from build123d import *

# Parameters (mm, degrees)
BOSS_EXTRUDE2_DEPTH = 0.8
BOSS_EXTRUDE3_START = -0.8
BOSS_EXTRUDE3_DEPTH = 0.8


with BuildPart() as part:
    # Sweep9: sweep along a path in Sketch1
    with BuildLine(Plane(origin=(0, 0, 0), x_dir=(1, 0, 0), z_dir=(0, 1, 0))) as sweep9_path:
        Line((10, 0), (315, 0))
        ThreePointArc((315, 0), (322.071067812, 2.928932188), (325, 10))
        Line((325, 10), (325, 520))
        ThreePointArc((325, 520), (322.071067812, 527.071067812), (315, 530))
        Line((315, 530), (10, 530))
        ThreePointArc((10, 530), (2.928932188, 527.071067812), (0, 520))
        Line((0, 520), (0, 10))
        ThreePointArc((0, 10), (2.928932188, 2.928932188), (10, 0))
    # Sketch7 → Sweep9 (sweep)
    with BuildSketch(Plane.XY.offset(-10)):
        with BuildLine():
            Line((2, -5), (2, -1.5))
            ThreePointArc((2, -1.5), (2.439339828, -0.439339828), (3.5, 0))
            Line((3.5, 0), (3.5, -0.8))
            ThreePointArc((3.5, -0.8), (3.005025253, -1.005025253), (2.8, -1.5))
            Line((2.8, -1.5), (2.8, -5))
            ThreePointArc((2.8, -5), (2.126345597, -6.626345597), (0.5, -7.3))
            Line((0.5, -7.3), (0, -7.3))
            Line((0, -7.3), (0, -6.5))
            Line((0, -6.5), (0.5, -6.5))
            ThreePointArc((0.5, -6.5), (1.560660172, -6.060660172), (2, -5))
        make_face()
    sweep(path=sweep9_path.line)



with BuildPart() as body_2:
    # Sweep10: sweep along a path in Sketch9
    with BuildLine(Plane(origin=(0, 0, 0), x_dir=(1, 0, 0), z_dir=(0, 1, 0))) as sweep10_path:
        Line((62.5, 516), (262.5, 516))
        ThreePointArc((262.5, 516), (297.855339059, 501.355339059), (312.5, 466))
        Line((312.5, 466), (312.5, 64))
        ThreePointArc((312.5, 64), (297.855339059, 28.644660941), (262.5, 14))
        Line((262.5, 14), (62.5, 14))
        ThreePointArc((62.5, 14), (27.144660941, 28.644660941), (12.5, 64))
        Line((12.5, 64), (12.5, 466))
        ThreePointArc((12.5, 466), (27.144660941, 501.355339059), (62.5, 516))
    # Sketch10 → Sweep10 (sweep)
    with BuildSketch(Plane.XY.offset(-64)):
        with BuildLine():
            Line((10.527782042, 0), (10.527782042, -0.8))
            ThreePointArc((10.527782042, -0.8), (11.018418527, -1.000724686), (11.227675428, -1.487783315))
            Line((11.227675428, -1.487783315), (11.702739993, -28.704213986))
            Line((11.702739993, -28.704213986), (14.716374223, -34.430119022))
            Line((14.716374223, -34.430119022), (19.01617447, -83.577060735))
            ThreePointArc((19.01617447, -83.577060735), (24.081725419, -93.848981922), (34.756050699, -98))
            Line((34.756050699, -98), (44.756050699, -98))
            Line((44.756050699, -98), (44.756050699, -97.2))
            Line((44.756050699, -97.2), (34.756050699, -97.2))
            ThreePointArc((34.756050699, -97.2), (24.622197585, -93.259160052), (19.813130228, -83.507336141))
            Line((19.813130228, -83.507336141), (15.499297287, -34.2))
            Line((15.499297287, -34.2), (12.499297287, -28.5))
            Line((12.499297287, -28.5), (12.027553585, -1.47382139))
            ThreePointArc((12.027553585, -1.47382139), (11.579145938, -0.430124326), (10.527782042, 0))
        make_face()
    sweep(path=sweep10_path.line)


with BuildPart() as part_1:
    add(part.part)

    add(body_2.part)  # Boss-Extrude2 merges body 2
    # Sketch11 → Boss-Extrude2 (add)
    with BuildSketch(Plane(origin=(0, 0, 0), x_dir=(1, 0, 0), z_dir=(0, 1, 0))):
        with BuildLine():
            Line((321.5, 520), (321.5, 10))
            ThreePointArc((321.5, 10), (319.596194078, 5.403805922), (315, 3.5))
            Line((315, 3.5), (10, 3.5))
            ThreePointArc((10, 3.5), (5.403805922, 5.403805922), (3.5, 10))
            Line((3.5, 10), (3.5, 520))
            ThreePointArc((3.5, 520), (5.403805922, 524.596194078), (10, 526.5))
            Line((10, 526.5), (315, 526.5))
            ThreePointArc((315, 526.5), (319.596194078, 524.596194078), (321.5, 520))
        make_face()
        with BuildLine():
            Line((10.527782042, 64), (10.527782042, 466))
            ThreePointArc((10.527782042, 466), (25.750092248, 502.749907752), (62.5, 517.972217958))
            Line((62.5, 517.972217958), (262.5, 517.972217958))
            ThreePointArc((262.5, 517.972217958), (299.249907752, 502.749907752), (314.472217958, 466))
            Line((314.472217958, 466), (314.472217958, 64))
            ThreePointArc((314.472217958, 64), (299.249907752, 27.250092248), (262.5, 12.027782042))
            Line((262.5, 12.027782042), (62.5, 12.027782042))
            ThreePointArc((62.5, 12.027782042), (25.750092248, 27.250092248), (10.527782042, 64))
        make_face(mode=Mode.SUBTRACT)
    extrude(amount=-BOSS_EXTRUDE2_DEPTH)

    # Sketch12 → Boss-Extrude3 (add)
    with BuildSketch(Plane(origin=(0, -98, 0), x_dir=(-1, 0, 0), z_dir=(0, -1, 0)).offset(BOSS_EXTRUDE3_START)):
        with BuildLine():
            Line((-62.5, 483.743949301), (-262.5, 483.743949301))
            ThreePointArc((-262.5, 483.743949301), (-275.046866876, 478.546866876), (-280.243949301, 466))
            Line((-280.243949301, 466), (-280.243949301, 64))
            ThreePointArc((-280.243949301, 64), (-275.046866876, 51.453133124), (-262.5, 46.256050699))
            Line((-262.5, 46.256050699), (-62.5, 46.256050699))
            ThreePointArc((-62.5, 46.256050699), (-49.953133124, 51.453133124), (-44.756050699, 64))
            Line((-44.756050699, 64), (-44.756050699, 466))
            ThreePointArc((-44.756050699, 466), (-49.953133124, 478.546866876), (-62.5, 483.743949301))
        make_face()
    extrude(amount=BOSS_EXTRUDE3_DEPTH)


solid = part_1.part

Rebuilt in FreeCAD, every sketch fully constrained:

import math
import FreeCAD as App
import Part
import Sketcher
from FreeCAD import Vector
Q = App.Units.Quantity

doc = App.newDocument("Part")
body = doc.addObject("PartDesign::Body", "Body")

# Sketch on XY plane
sketch1 = body.newObject("Sketcher::SketchObject", "Sketch")
sketch1.AttachmentSupport = (doc.getObject("XY_Plane"), [""])
sketch1.MapMode = "FlatFace"
sketch1.AttachmentOffset = App.Placement(Vector(0, 0, -10), App.Rotation())
sketch1.addGeometry(Part.LineSegment(Vector(2, -1.5, 0), Vector(2, -5, 0)), False)
sketch1.addGeometry(Part.ArcOfCircle(Part.Circle(Vector(0.5, -5, 0), Vector(0, 0, 1), 1.5), math.radians(-90), math.radians(0)), False)
sketch1.addGeometry(Part.LineSegment(Vector(0.5, -6.5, 0), Vector(0, -6.5, 0)), False)
sketch1.addGeometry(Part.LineSegment(Vector(0, -6.5, 0), Vector(0, -7.3, 0)), False)
sketch1.addGeometry(Part.LineSegment(Vector(0, -7.3, 0), Vector(0.5, -7.3, 0)), False)
sketch1.addGeometry(Part.ArcOfCircle(Part.Circle(Vector(0.5, -5, 0), Vector(0, 0, 1), 2.3), math.radians(-90), math.radians(0)), False)
sketch1.addGeometry(Part.LineSegment(Vector(2.8, -5, 0), Vector(2.8, -1.5, 0)), False)
sketch1.addGeometry(Part.ArcOfCircle(Part.Circle(Vector(3.5, -1.5, 0), Vector(0, 0, 1), 0.7), math.radians(90), math.radians(180)), False)
sketch1.addGeometry(Part.LineSegment(Vector(3.5, -0.8, 0), Vector(3.5, 0, 0)), False)
sketch1.addGeometry(Part.ArcOfCircle(Part.Circle(Vector(3.5, -1.5, 0), Vector(0, 0, 1), 1.5), math.radians(90), math.radians(180)), False)
sketch1.addConstraint(Sketcher.Constraint("Tangent", 0, 2, 1, 2))
sketch1.addConstraint(Sketcher.Constraint("Tangent", 1, 1, 2, 1))
sketch1.addConstraint(Sketcher.Constraint("Coincident", 2, 2, 3, 1))
sketch1.addConstraint(Sketcher.Constraint("Coincident", 3, 2, 4, 1))
sketch1.addConstraint(Sketcher.Constraint("Tangent", 4, 2, 5, 1))
sketch1.addConstraint(Sketcher.Constraint("Tangent", 5, 2, 6, 1))
sketch1.addConstraint(Sketcher.Constraint("Tangent", 6, 2, 7, 2))
sketch1.addConstraint(Sketcher.Constraint("Coincident", 7, 1, 8, 1))
sketch1.addConstraint(Sketcher.Constraint("Coincident", 8, 2, 9, 1))
sketch1.addConstraint(Sketcher.Constraint("Tangent", 9, 2, 0, 1))
sketch1.addConstraint(Sketcher.Constraint("Vertical", 0))
sketch1.addConstraint(Sketcher.Constraint("Horizontal", 2))
sketch1.addConstraint(Sketcher.Constraint("Vertical", 3))
sketch1.addConstraint(Sketcher.Constraint("Horizontal", 4))
sketch1.addConstraint(Sketcher.Constraint("Vertical", 6))
sketch1.addConstraint(Sketcher.Constraint("Vertical", 8))
sketch1.addConstraint(Sketcher.Constraint("Coincident", 5, 3, 1, 3))
sketch1.addConstraint(Sketcher.Constraint("Coincident", 9, 3, 7, 3))
sketch1.addConstraint(Sketcher.Constraint("Equal", 1, 9))
sketch1.addConstraint(Sketcher.Constraint("PointOnObject", 2, 2, -2))
sketch1.addConstraint(Sketcher.Constraint("PointOnObject", 8, 2, -1))
sketch1.addConstraint(Sketcher.Constraint("Vertical", 9, 3, 7, 1))
sketch1.addConstraint(Sketcher.Constraint("Radius", 1, 1.5))
sketch1.addConstraint(Sketcher.Constraint("Radius", 5, 2.3))
sketch1.addConstraint(Sketcher.Constraint("DistanceX", 2, 2, 2, 1, 0.5))
sketch1.addConstraint(Sketcher.Constraint("DistanceY", 0, 2, 0, 1, 3.5))

# Sketch on XZ plane
sketch2 = body.newObject("Sketcher::SketchObject", "Sketch001")
sketch2.AttachmentSupport = (doc.getObject("XZ_Plane"), [""])
sketch2.MapMode = "FlatFace"
sketch2.addGeometry(Part.LineSegment(Vector(10, 0, 0), Vector(315, 0, 0)), False)
sketch2.addGeometry(Part.ArcOfCircle(Part.Circle(Vector(315, -10, 0), Vector(0, 0, 1), 10), math.radians(0), math.radians(90)), False)
sketch2.addGeometry(Part.LineSegment(Vector(325, -10, 0), Vector(325, -520, 0)), False)
sketch2.addGeometry(Part.ArcOfCircle(Part.Circle(Vector(315, -520, 0), Vector(0, 0, 1), 10), math.radians(-90), math.radians(0)), False)
sketch2.addGeometry(Part.LineSegment(Vector(315, -530, 0), Vector(10, -530, 0)), False)
sketch2.addGeometry(Part.ArcOfCircle(Part.Circle(Vector(10, -520, 0), Vector(0, 0, 1), 10), math.radians(180), math.radians(270)), False)
sketch2.addGeometry(Part.LineSegment(Vector(0, -520, 0), Vector(0, -10, 0)), False)
sketch2.addGeometry(Part.ArcOfCircle(Part.Circle(Vector(10, -10, 0), Vector(0, 0, 1), 10), math.radians(90), math.radians(180)), False)
sketch2.addConstraint(Sketcher.Constraint("Tangent", 0, 2, 1, 2))
sketch2.addConstraint(Sketcher.Constraint("Tangent", 1, 1, 2, 1))
sketch2.addConstraint(Sketcher.Constraint("Tangent", 2, 2, 3, 2))
sketch2.addConstraint(Sketcher.Constraint("Tangent", 3, 1, 4, 1))
sketch2.addConstraint(Sketcher.Constraint("Tangent", 4, 2, 5, 2))
sketch2.addConstraint(Sketcher.Constraint("Tangent", 5, 1, 6, 1))
sketch2.addConstraint(Sketcher.Constraint("Tangent", 6, 2, 7, 2))
sketch2.addConstraint(Sketcher.Constraint("Tangent", 7, 1, 0, 1))
sketch2.addConstraint(Sketcher.Constraint("Horizontal", 0))
sketch2.addConstraint(Sketcher.Constraint("Vertical", 2))
sketch2.addConstraint(Sketcher.Constraint("Horizontal", 4))
sketch2.addConstraint(Sketcher.Constraint("Vertical", 6))
sketch2.addConstraint(Sketcher.Constraint("Equal", 1, 3))
sketch2.addConstraint(Sketcher.Constraint("Equal", 3, 5))
sketch2.addConstraint(Sketcher.Constraint("Equal", 5, 7))
sketch2.addConstraint(Sketcher.Constraint("PointOnObject", 0, 2, -1))
sketch2.addConstraint(Sketcher.Constraint("PointOnObject", 5, 1, -2))
sketch2.addConstraint(Sketcher.Constraint("Radius", 1, 10.0))
sketch2.addConstraint(Sketcher.Constraint("DistanceX", 0, 1, 0, 2, 305.0))
sketch2.addConstraint(Sketcher.Constraint("DistanceY", 2, 2, 2, 1, 510.0))
doc.recompute()

additivepipe = body.newObject("PartDesign::AdditivePipe", "AdditivePipe")
additivepipe.Profile = sketch1
additivepipe.Spine = (sketch2, ["Edge1", "Edge2", "Edge3", "Edge4", "Edge5", "Edge6", "Edge7", "Edge8"])
body2 = doc.addObject("PartDesign::Body", "Body001")

# Sketch on XY plane
sketch3 = body2.newObject("Sketcher::SketchObject", "Sketch002")
sketch3.AttachmentSupport = (doc.getObject("XY_Plane001"), [""])
sketch3.MapMode = "FlatFace"
sketch3.AttachmentOffset = App.Placement(Vector(0, 0, -64), App.Rotation())
sketch3.addGeometry(Part.LineSegment(Vector(10.5, 0, 0), Vector(10.5, -0.8, 0)), False)
sketch3.addGeometry(Part.ArcOfCircle(Part.Circle(Vector(10.5, -1.5, 0), Vector(0, 0, 1), 0.7), math.radians(1), math.radians(90)), False)
sketch3.addGeometry(Part.LineSegment(Vector(11.2, -1.5, 0), Vector(11.7, -28.7, 0)), False)
sketch3.addGeometry(Part.LineSegment(Vector(11.7, -28.7, 0), Vector(14.7, -34.4, 0)), False)
sketch3.addGeometry(Part.LineSegment(Vector(14.7, -34.4, 0), Vector(19, -83.6, 0)), False)
sketch3.addGeometry(Part.ArcOfCircle(Part.Circle(Vector(34.8, -82.2, 0), Vector(0, 0, 1), 15.8), math.radians(-175), math.radians(-90)), False)
sketch3.addGeometry(Part.LineSegment(Vector(34.8, -98, 0), Vector(44.8, -98, 0)), False)
sketch3.addGeometry(Part.LineSegment(Vector(44.8, -98, 0), Vector(44.8, -97.2, 0)), False)
sketch3.addGeometry(Part.LineSegment(Vector(44.8, -97.2, 0), Vector(34.8, -97.2, 0)), False)
sketch3.addGeometry(Part.ArcOfCircle(Part.Circle(Vector(34.8, -82.2, 0), Vector(0, 0, 1), 15), math.radians(-175), math.radians(-90)), False)
sketch3.addGeometry(Part.LineSegment(Vector(19.8, -83.5, 0), Vector(15.5, -34.2, 0)), False)
sketch3.addGeometry(Part.LineSegment(Vector(15.5, -34.2, 0), Vector(12.5, -28.5, 0)), False)
sketch3.addGeometry(Part.LineSegment(Vector(12.5, -28.5, 0), Vector(12, -1.5, 0)), False)
sketch3.addGeometry(Part.ArcOfCircle(Part.Circle(Vector(10.5, -1.5, 0), Vector(0, 0, 1), 1.5), math.radians(1), math.radians(90)), False)
sketch3.addConstraint(Sketcher.Constraint("Coincident", 0, 2, 1, 2))
sketch3.addConstraint(Sketcher.Constraint("Tangent", 1, 1, 2, 1))
sketch3.addConstraint(Sketcher.Constraint("Coincident", 2, 2, 3, 1))
sketch3.addConstraint(Sketcher.Constraint("Coincident", 3, 2, 4, 1))
sketch3.addConstraint(Sketcher.Constraint("Tangent", 4, 2, 5, 1))
sketch3.addConstraint(Sketcher.Constraint("Tangent", 5, 2, 6, 1))
sketch3.addConstraint(Sketcher.Constraint("Coincident", 6, 2, 7, 1))
sketch3.addConstraint(Sketcher.Constraint("Coincident", 7, 2, 8, 1))
sketch3.addConstraint(Sketcher.Constraint("Tangent", 8, 2, 9, 2))
sketch3.addConstraint(Sketcher.Constraint("Tangent", 9, 1, 10, 1))
sketch3.addConstraint(Sketcher.Constraint("Coincident", 10, 2, 11, 1))
sketch3.addConstraint(Sketcher.Constraint("Coincident", 11, 2, 12, 1))
sketch3.addConstraint(Sketcher.Constraint("Tangent", 12, 2, 13, 1))
sketch3.addConstraint(Sketcher.Constraint("Coincident", 13, 2, 0, 1))
sketch3.addConstraint(Sketcher.Constraint("Vertical", 0))
sketch3.addConstraint(Sketcher.Constraint("Horizontal", 6))
sketch3.addConstraint(Sketcher.Constraint("Vertical", 7))
sketch3.addConstraint(Sketcher.Constraint("Horizontal", 8))
sketch3.addConstraint(Sketcher.Constraint("Coincident", 9, 3, 5, 3))
sketch3.addConstraint(Sketcher.Constraint("Coincident", 13, 3, 1, 3))
sketch3.addConstraint(Sketcher.Constraint("PointOnObject", 13, 2, -1))
sketch3.addConstraint(Sketcher.Constraint("Parallel", 4, 10))
sketch3.addConstraint(Sketcher.Constraint("Parallel", 3, 11))
sketch3.addConstraint(Sketcher.Constraint("Parallel", 2, 12))
sketch3.addConstraint(Sketcher.Constraint("Vertical", 13, 3, 0, 2))
sketch3.addConstraint(Sketcher.Constraint("Equal", 0, 7))
sketch3.addConstraint(Sketcher.Constraint("Radius", 9, 15.0))
sketch3.addConstraint(Sketcher.Constraint("Radius", 1, 0.7))
sketch3.addConstraint(Sketcher.Constraint("Radius", 5, 15.8))
sketch3.addConstraint(Sketcher.Constraint("DistanceX", 6, 1, 6, 2, 10.0))
sketch3.addConstraint(Sketcher.Constraint("Angle", 2, Q("-89 deg")))
sketch3.addConstraint(Sketcher.Constraint("Angle", 4, Q("-85 deg")))
sketch3.addConstraint(Sketcher.Constraint("DistanceY", 5, 2, -1, 1, 98.0))
sketch3.addConstraint(Sketcher.Constraint("DistanceX", 11, 2, 10, 2, 3.0))
sketch3.addConstraint(Sketcher.Constraint("DistanceY", 11, 2, 13, 3, 27.0))
sketch3.addConstraint(Sketcher.Constraint("DistanceY", 10, 2, -1, 1, 34.2))
sketch3.addConstraint(Sketcher.Constraint("DistanceX", 1, 1, 3, 2, 3.488699))
sketch3.addConstraint(Sketcher.Constraint("DistanceX", -1, 1, 5, 3, 34.756051))

# Sketch on XZ plane
sketch4 = body2.newObject("Sketcher::SketchObject", "Sketch003")
sketch4.AttachmentSupport = (doc.getObject("XZ_Plane001"), [""])
sketch4.MapMode = "FlatFace"
sketch4.addGeometry(Part.LineSegment(Vector(62, -516, 0), Vector(262, -516, 0)), False)
sketch4.addGeometry(Part.ArcOfCircle(Part.Circle(Vector(262, -466, 0), Vector(0, 0, 1), 50), math.radians(-90), math.radians(0)), False)
sketch4.addGeometry(Part.LineSegment(Vector(312, -466, 0), Vector(312, -64, 0)), False)
sketch4.addGeometry(Part.ArcOfCircle(Part.Circle(Vector(262, -64, 0), Vector(0, 0, 1), 50), math.radians(0), math.radians(90)), False)
sketch4.addGeometry(Part.LineSegment(Vector(262, -14, 0), Vector(62, -14, 0)), False)
sketch4.addGeometry(Part.ArcOfCircle(Part.Circle(Vector(63, -64, 0), Vector(0, 0, 1), 50), math.radians(90), math.radians(180)), False)
sketch4.addGeometry(Part.LineSegment(Vector(12, -64, 0), Vector(12, -466, 0)), False)
sketch4.addGeometry(Part.ArcOfCircle(Part.Circle(Vector(63, -466, 0), Vector(0, 0, 1), 50), math.radians(-180), math.radians(-90)), False)
sketch4.addConstraint(Sketcher.Constraint("Tangent", 0, 2, 1, 1))
sketch4.addConstraint(Sketcher.Constraint("Tangent", 1, 2, 2, 1))
sketch4.addConstraint(Sketcher.Constraint("Tangent", 2, 2, 3, 1))
sketch4.addConstraint(Sketcher.Constraint("Tangent", 3, 2, 4, 1))
sketch4.addConstraint(Sketcher.Constraint("Tangent", 4, 2, 5, 1))
sketch4.addConstraint(Sketcher.Constraint("Tangent", 5, 2, 6, 1))
sketch4.addConstraint(Sketcher.Constraint("Tangent", 6, 2, 7, 1))
sketch4.addConstraint(Sketcher.Constraint("Tangent", 7, 2, 0, 1))
sketch4.addConstraint(Sketcher.Constraint("Horizontal", 0))
sketch4.addConstraint(Sketcher.Constraint("Vertical", 2))
sketch4.addConstraint(Sketcher.Constraint("Horizontal", 4))
sketch4.addConstraint(Sketcher.Constraint("Vertical", 6))
sketch4.addConstraint(Sketcher.Constraint("Equal", 1, 3))
sketch4.addConstraint(Sketcher.Constraint("Equal", 3, 5))
sketch4.addConstraint(Sketcher.Constraint("Equal", 5, 7))
sketch4.addConstraint(Sketcher.Constraint("Radius", 1, 50.0))
sketch4.addConstraint(Sketcher.Constraint("DistanceX", 0, 1, 0, 2, 200.0))
sketch4.addConstraint(Sketcher.Constraint("DistanceY", 2, 1, 2, 2, 402.0))
sketch4.addConstraint(Sketcher.Constraint("DistanceY", 1, 3, -1, 1, 466.0))
sketch4.addConstraint(Sketcher.Constraint("DistanceX", -1, 1, 1, 3, 262.5))
doc.recompute()

additivepipe2 = body2.newObject("PartDesign::AdditivePipe", "AdditivePipe001")
additivepipe2.Profile = sketch3
additivepipe2.Spine = (sketch4, ["Edge1", "Edge2", "Edge3", "Edge4", "Edge5", "Edge6", "Edge7", "Edge8"])
body.AllowCompound = True
doc.recompute()

boolean = body.newObject("PartDesign::Boolean", "Boolean")
boolean.Type = "Fuse"
boolean.addObjects([body2])

# Sketch on XZ plane
sketch5 = body.newObject("Sketcher::SketchObject", "Sketch004")
sketch5.AttachmentSupport = (doc.getObject("XZ_Plane"), [""])
sketch5.MapMode = "FlatFace"
sketch5.addGeometry(Part.LineSegment(Vector(322, -10, 0), Vector(322, -520, 0)), False)
sketch5.addGeometry(Part.ArcOfCircle(Part.Circle(Vector(315, -520, 0), Vector(0, 0, 1), 6), math.radians(-90), math.radians(0)), False)
sketch5.addGeometry(Part.LineSegment(Vector(315, -526, 0), Vector(10, -526, 0)), False)
sketch5.addGeometry(Part.ArcOfCircle(Part.Circle(Vector(10, -520, 0), Vector(0, 0, 1), 6), math.radians(180), math.radians(270)), False)
sketch5.addGeometry(Part.LineSegment(Vector(4, -520, 0), Vector(4, -10, 0)), False)
sketch5.addGeometry(Part.ArcOfCircle(Part.Circle(Vector(10, -10, 0), Vector(0, 0, 1), 6), math.radians(90), math.radians(180)), False)
sketch5.addGeometry(Part.LineSegment(Vector(10, -4, 0), Vector(315, -4, 0)), False)
sketch5.addGeometry(Part.ArcOfCircle(Part.Circle(Vector(315, -10, 0), Vector(0, 0, 1), 6), math.radians(0), math.radians(90)), False)
sketch5.addGeometry(Part.LineSegment(Vector(11, -64, 0), Vector(11, -466, 0)), False)
sketch5.addGeometry(Part.ArcOfCircle(Part.Circle(Vector(62, -466, 0), Vector(0, 0, 1), 52), math.radians(180), math.radians(270)), False)
sketch5.addGeometry(Part.LineSegment(Vector(62, -518, 0), Vector(262, -518, 0)), False)
sketch5.addGeometry(Part.ArcOfCircle(Part.Circle(Vector(263, -466, 0), Vector(0, 0, 1), 52), math.radians(-90), math.radians(0)), False)
sketch5.addGeometry(Part.LineSegment(Vector(314, -466, 0), Vector(314, -64, 0)), False)
sketch5.addGeometry(Part.ArcOfCircle(Part.Circle(Vector(263, -64, 0), Vector(0, 0, 1), 52), math.radians(0), math.radians(90)), False)
sketch5.addGeometry(Part.LineSegment(Vector(262, -12, 0), Vector(62, -12, 0)), False)
sketch5.addGeometry(Part.ArcOfCircle(Part.Circle(Vector(62, -64, 0), Vector(0, 0, 1), 52), math.radians(90), math.radians(180)), False)
sketch5.addConstraint(Sketcher.Constraint("Tangent", 0, 2, 1, 2))
sketch5.addConstraint(Sketcher.Constraint("Tangent", 1, 1, 2, 1))
sketch5.addConstraint(Sketcher.Constraint("Tangent", 2, 2, 3, 2))
sketch5.addConstraint(Sketcher.Constraint("Tangent", 3, 1, 4, 1))
sketch5.addConstraint(Sketcher.Constraint("Tangent", 4, 2, 5, 2))
sketch5.addConstraint(Sketcher.Constraint("Tangent", 5, 1, 6, 1))
sketch5.addConstraint(Sketcher.Constraint("Tangent", 6, 2, 7, 2))
sketch5.addConstraint(Sketcher.Constraint("Tangent", 7, 1, 0, 1))
sketch5.addConstraint(Sketcher.Constraint("Tangent", 8, 2, 9, 1))
sketch5.addConstraint(Sketcher.Constraint("Tangent", 9, 2, 10, 1))
sketch5.addConstraint(Sketcher.Constraint("Tangent", 10, 2, 11, 1))
sketch5.addConstraint(Sketcher.Constraint("Tangent", 11, 2, 12, 1))
sketch5.addConstraint(Sketcher.Constraint("Tangent", 12, 2, 13, 1))
sketch5.addConstraint(Sketcher.Constraint("Tangent", 13, 2, 14, 1))
sketch5.addConstraint(Sketcher.Constraint("Tangent", 14, 2, 15, 1))
sketch5.addConstraint(Sketcher.Constraint("Tangent", 15, 2, 8, 1))
sketch5.addConstraint(Sketcher.Constraint("Vertical", 0))
sketch5.addConstraint(Sketcher.Constraint("Horizontal", 2))
sketch5.addConstraint(Sketcher.Constraint("Vertical", 4))
sketch5.addConstraint(Sketcher.Constraint("Horizontal", 6))
sketch5.addConstraint(Sketcher.Constraint("Vertical", 8))
sketch5.addConstraint(Sketcher.Constraint("Horizontal", 10))
sketch5.addConstraint(Sketcher.Constraint("Vertical", 12))
sketch5.addConstraint(Sketcher.Constraint("Horizontal", 14))
sketch5.addConstraint(Sketcher.Constraint("Equal", 1, 3))
sketch5.addConstraint(Sketcher.Constraint("Equal", 3, 5))
sketch5.addConstraint(Sketcher.Constraint("Equal", 5, 7))
sketch5.addConstraint(Sketcher.Constraint("Equal", 9, 11))
sketch5.addConstraint(Sketcher.Constraint("Equal", 11, 13))
sketch5.addConstraint(Sketcher.Constraint("Equal", 13, 15))
sketch5.addConstraint(Sketcher.Constraint("Radius", 1, 6.5))
sketch5.addConstraint(Sketcher.Constraint("DistanceX", 2, 2, 2, 1, 305.0))
sketch5.addConstraint(Sketcher.Constraint("DistanceX", 10, 1, 10, 2, 200.0))
sketch5.addConstraint(Sketcher.Constraint("DistanceY", 0, 2, 0, 1, 510.0))
sketch5.addConstraint(Sketcher.Constraint("DistanceY", 8, 2, 8, 1, 402.0))
sketch5.addConstraint(Sketcher.Constraint("DistanceX", -1, 1, 1, 3, 315.0))
sketch5.addConstraint(Sketcher.Constraint("DistanceY", 1, 3, -1, 1, 520.0))
sketch5.addConstraint(Sketcher.Constraint("DistanceY", 9, 3, -1, 1, 466.0))
sketch5.addConstraint(Sketcher.Constraint("DistanceX", 11, 3, 0, 2, 59.0))
sketch5.addConstraint(Sketcher.Constraint("Radius", 9, 51.972218))
pad1 = body.newObject("PartDesign::Pad", "Pad")
pad1.Profile = sketch5
pad1.Length = 0.8

# Sketch on XZ plane
sketch6 = body.newObject("Sketcher::SketchObject", "Sketch005")
sketch6.AttachmentSupport = (doc.getObject("XZ_Plane"), [""])
sketch6.MapMode = "FlatFace"
sketch6.AttachmentOffset = App.Placement(Vector(0, 0, 97.2), App.Rotation())
sketch6.addGeometry(Part.LineSegment(Vector(62, -484, 0), Vector(262, -484, 0)), False)
sketch6.addGeometry(Part.ArcOfCircle(Part.Circle(Vector(263, -466, 0), Vector(0, 0, 1), 18), math.radians(-90), math.radians(0)), False)
sketch6.addGeometry(Part.LineSegment(Vector(280, -466, 0), Vector(280, -64, 0)), False)
sketch6.addGeometry(Part.ArcOfCircle(Part.Circle(Vector(263, -64, 0), Vector(0, 0, 1), 18), math.radians(0), math.radians(90)), False)
sketch6.addGeometry(Part.LineSegment(Vector(262, -46, 0), Vector(62, -46, 0)), False)
sketch6.addGeometry(Part.ArcOfCircle(Part.Circle(Vector(62, -64, 0), Vector(0, 0, 1), 18), math.radians(90), math.radians(180)), False)
sketch6.addGeometry(Part.LineSegment(Vector(45, -64, 0), Vector(45, -466, 0)), False)
sketch6.addGeometry(Part.ArcOfCircle(Part.Circle(Vector(62, -466, 0), Vector(0, 0, 1), 18), math.radians(180), math.radians(270)), False)
sketch6.addConstraint(Sketcher.Constraint("Tangent", 0, 2, 1, 1))
sketch6.addConstraint(Sketcher.Constraint("Tangent", 1, 2, 2, 1))
sketch6.addConstraint(Sketcher.Constraint("Tangent", 2, 2, 3, 1))
sketch6.addConstraint(Sketcher.Constraint("Tangent", 3, 2, 4, 1))
sketch6.addConstraint(Sketcher.Constraint("Tangent", 4, 2, 5, 1))
sketch6.addConstraint(Sketcher.Constraint("Tangent", 5, 2, 6, 1))
sketch6.addConstraint(Sketcher.Constraint("Tangent", 6, 2, 7, 1))
sketch6.addConstraint(Sketcher.Constraint("Tangent", 7, 2, 0, 1))
sketch6.addConstraint(Sketcher.Constraint("Horizontal", 0))
sketch6.addConstraint(Sketcher.Constraint("Vertical", 2))
sketch6.addConstraint(Sketcher.Constraint("Horizontal", 4))
sketch6.addConstraint(Sketcher.Constraint("Vertical", 6))
sketch6.addConstraint(Sketcher.Constraint("Equal", 1, 3))
sketch6.addConstraint(Sketcher.Constraint("Equal", 3, 5))
sketch6.addConstraint(Sketcher.Constraint("Equal", 5, 7))
sketch6.addConstraint(Sketcher.Constraint("DistanceX", 0, 1, 0, 2, 200.0))
sketch6.addConstraint(Sketcher.Constraint("DistanceY", 2, 1, 2, 2, 402.0))
sketch6.addConstraint(Sketcher.Constraint("DistanceY", 1, 3, -1, 1, 466.0))
sketch6.addConstraint(Sketcher.Constraint("DistanceX", -1, 1, 1, 3, 262.5))
sketch6.addConstraint(Sketcher.Constraint("Radius", 1, 17.743949))
pad2 = body.newObject("PartDesign::Pad", "Pad001")
pad2.Profile = sketch6
pad2.Length = 0.8

doc.recompute()
